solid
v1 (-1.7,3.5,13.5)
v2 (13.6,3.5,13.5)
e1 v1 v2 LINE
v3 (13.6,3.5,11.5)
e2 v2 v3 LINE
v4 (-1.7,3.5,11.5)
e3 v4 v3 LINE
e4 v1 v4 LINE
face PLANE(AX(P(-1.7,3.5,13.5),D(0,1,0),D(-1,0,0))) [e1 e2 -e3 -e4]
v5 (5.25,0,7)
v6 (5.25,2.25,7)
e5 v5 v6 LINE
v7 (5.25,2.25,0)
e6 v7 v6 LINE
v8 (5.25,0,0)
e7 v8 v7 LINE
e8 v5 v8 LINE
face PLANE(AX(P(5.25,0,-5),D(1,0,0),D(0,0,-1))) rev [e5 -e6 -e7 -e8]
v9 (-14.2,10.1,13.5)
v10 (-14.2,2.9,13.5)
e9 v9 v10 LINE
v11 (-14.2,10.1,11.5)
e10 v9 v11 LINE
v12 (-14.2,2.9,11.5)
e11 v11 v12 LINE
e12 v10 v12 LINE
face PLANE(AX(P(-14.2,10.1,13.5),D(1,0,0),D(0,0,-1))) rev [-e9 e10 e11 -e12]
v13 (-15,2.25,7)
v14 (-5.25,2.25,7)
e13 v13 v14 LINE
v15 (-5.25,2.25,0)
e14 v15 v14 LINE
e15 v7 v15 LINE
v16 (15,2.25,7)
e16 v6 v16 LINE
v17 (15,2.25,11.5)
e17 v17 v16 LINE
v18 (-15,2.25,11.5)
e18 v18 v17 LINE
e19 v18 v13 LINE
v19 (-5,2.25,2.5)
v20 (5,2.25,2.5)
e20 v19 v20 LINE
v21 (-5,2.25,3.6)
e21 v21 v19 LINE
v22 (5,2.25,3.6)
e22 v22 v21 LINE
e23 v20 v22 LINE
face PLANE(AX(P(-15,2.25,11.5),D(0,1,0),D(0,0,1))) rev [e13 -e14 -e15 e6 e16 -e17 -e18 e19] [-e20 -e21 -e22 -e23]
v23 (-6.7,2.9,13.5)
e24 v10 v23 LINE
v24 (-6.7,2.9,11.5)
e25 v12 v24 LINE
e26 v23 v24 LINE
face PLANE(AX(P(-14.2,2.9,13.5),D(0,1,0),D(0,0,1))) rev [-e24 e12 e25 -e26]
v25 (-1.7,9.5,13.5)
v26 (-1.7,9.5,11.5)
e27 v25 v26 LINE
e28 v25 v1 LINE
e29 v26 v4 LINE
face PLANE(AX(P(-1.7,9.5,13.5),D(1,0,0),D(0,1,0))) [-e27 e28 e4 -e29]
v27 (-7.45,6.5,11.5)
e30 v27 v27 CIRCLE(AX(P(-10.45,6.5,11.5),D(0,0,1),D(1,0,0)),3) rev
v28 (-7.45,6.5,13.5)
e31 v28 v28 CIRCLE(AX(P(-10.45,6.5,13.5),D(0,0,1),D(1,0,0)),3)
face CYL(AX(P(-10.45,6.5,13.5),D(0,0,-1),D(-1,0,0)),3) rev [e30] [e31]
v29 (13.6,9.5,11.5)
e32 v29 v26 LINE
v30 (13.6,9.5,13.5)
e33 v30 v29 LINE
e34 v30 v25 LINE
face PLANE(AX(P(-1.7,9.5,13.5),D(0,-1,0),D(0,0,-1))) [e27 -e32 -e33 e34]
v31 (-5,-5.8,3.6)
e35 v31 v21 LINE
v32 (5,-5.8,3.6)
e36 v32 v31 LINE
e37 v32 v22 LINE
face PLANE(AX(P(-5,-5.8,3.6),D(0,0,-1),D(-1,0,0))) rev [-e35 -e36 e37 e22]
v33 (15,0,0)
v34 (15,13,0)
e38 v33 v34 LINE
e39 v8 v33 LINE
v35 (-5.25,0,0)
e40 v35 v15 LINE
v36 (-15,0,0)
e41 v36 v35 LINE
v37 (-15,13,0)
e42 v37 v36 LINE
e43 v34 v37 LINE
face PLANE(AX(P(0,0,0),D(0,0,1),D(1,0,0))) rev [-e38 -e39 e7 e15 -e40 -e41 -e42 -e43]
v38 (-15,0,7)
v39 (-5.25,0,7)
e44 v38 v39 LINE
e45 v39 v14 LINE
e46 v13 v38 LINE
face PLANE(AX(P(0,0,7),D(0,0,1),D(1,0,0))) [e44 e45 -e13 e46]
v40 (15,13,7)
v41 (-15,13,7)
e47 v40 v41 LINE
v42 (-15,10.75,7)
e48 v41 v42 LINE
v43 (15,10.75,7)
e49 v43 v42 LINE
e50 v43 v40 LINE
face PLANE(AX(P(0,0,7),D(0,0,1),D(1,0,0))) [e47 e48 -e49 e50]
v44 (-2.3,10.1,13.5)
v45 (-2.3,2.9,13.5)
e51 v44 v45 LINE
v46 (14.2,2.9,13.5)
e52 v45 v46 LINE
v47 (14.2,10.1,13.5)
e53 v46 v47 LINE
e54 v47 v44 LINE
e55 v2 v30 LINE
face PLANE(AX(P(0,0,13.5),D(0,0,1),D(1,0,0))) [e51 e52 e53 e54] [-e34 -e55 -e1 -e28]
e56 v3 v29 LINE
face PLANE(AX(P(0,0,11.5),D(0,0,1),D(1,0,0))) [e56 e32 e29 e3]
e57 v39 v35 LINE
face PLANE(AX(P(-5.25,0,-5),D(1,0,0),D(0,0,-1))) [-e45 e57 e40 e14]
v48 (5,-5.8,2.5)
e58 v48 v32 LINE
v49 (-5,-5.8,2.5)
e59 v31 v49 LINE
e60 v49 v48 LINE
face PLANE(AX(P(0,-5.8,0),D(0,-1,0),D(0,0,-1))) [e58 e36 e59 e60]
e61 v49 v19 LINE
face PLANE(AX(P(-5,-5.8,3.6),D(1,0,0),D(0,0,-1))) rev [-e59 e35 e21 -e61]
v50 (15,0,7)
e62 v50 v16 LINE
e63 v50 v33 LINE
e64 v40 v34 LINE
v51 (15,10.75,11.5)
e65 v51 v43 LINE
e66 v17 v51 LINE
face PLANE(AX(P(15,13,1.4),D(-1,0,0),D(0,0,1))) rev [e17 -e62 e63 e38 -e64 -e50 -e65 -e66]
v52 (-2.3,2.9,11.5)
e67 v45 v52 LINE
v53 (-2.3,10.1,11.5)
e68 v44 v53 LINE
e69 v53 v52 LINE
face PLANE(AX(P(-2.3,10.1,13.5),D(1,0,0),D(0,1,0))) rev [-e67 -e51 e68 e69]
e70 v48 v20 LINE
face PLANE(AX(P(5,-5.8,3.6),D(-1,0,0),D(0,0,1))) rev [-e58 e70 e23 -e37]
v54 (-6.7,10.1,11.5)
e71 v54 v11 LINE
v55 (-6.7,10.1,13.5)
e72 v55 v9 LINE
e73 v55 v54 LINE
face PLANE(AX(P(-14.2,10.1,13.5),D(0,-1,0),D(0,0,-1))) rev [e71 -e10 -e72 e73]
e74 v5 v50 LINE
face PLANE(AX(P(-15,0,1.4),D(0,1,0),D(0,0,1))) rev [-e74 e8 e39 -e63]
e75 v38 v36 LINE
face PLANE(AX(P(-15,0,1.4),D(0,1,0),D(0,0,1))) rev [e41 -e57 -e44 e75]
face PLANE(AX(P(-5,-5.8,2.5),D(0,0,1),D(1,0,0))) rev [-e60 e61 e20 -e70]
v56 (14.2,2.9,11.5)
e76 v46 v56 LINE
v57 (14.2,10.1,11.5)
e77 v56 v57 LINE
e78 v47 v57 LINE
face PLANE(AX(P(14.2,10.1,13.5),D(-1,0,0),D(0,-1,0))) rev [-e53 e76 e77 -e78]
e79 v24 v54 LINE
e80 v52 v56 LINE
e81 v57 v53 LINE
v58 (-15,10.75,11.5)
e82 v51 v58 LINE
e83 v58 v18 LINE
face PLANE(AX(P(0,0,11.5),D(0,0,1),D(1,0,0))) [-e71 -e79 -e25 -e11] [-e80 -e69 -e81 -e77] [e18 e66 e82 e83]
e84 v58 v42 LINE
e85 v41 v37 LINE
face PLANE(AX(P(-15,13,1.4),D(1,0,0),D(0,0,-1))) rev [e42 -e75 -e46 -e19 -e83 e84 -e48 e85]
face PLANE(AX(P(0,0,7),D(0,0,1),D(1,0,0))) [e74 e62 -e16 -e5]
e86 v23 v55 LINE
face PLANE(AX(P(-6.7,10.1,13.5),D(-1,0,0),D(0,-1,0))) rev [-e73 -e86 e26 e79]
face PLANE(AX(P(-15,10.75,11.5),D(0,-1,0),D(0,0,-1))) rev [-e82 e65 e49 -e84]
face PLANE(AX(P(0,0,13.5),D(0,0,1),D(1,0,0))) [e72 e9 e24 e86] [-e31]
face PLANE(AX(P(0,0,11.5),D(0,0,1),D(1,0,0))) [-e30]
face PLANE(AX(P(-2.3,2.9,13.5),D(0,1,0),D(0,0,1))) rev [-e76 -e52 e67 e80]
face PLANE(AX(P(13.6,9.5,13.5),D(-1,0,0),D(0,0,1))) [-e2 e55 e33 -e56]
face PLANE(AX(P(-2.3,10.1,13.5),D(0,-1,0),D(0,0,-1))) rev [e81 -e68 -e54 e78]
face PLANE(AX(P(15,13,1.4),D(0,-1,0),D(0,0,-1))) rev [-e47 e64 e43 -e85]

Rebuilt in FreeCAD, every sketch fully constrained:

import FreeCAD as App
import Part
import Sketcher

V = App.Vector
Q = App.Units.Quantity

doc = App.newDocument("Part")
body = doc.addObject("PartDesign::Body", "Body")

# Sketch on XY plane
sketch1 = doc.addObject("Sketcher::SketchObject", "Sketch")
body.addObject(sketch1)
sketch1.AttachmentSupport = (doc.XY_Plane, [""])
sketch1.MapMode = "FlatFace"
sketch1.addGeometry(Part.LineSegment(V(-15, 13, 0), V(-15, 0, 0)), False)
sketch1.addGeometry(Part.LineSegment(V(-15, 0, 0), V(15, 0, 0)), False)
sketch1.addGeometry(Part.LineSegment(V(15, 0, 0), V(15, 13, 0)), False)
sketch1.addGeometry(Part.LineSegment(V(15, 13, 0), V(-15, 13, 0)), False)
sketch1.addConstraint(Sketcher.Constraint("Coincident", 0, 2, 1, 1))
sketch1.addConstraint(Sketcher.Constraint("Coincident", 1, 2, 2, 1))
sketch1.addConstraint(Sketcher.Constraint("Coincident", 2, 2, 3, 1))
sketch1.addConstraint(Sketcher.Constraint("Coincident", 3, 2, 0, 1))
sketch1.addConstraint(Sketcher.Constraint("Vertical", 0))
sketch1.addConstraint(Sketcher.Constraint("Horizontal", 1))
sketch1.addConstraint(Sketcher.Constraint("Vertical", 2))
sketch1.addConstraint(Sketcher.Constraint("Horizontal", 3))
sketch1.addConstraint(Sketcher.Constraint("Symmetric", 0, 2, 1, 2, -1, 1))
sketch1.addConstraint(Sketcher.Constraint("DistanceX", 1, 1, 1, 2, Q("30 mm")))
sketch1.addConstraint(Sketcher.Constraint("DistanceY", 0, 2, 0, 1, Q("13 mm")))
pad1 = doc.addObject("PartDesign::Pad", "Pad")
body.addObject(pad1)
pad1.Profile = sketch1
pad1.Length = 1.4

# Sketch on XY plane
sketch2 = doc.addObject("Sketcher::SketchObject", "Sketch001")
body.addObject(sketch2)
sketch2.AttachmentSupport = (doc.XY_Plane, [""])
sketch2.MapMode = "FlatFace"
sketch2.AttachmentOffset = App.Placement(V(0, 0, 1.4), App.Rotation())
sketch2.addGeometry(Part.LineSegment(V(-15, 13, 0), V(-15, 0, 0)), False)
sketch2.addGeometry(Part.LineSegment(V(-15, 0, 0), V(15, 0, 0)), False)
sketch2.addGeometry(Part.LineSegment(V(15, 0, 0), V(15, 13, 0)), False)
sketch2.addGeometry(Part.LineSegment(V(15, 13, 0), V(-15, 13, 0)), False)
sketch2.addConstraint(Sketcher.Constraint("Coincident", 0, 2, 1, 1))
sketch2.addConstraint(Sketcher.Constraint("Coincident", 1, 2, 2, 1))
sketch2.addConstraint(Sketcher.Constraint("Coincident", 2, 2, 3, 1))
sketch2.addConstraint(Sketcher.Constraint("Coincident", 3, 2, 0, 1))
sketch2.addConstraint(Sketcher.Constraint("Vertical", 0))
sketch2.addConstraint(Sketcher.Constraint("Horizontal", 1))
sketch2.addConstraint(Sketcher.Constraint("Vertical", 2))
sketch2.addConstraint(Sketcher.Constraint("Horizontal", 3))
sketch2.addConstraint(Sketcher.Constraint("Symmetric", 0, 2, 1, 2, -1, 1))
sketch2.addConstraint(Sketcher.Constraint("DistanceX", 1, 1, 1, 2, Q("30 mm")))
sketch2.addConstraint(Sketcher.Constraint("DistanceY", 0, 2, 0, 1, Q("13 mm")))
pad2 = doc.addObject("PartDesign::Pad", "Pad001")
body.addObject(pad2)
pad2.Profile = sketch2
pad2.Length = 4

# Sketch on XY plane
sketch3 = doc.addObject("Sketcher::SketchObject", "Sketch002")
body.addObject(sketch3)
sketch3.AttachmentSupport = (doc.XY_Plane, [""])
sketch3.MapMode = "FlatFace"
sketch3.AttachmentOffset = App.Placement(V(0, 0, 5.4), App.Rotation())
sketch3.addGeometry(Part.LineSegment(V(-15, 13, 0), V(-15, 0, 0)), False)
sketch3.addGeometry(Part.LineSegment(V(-15, 0, 0), V(15, 0, 0)), False)
sketch3.addGeometry(Part.LineSegment(V(15, 0, 0), V(15, 13, 0)), False)
sketch3.addGeometry(Part.LineSegment(V(15, 13, 0), V(-15, 13, 0)), False)
sketch3.addConstraint(Sketcher.Constraint("Coincident", 0, 2, 1, 1))
sketch3.addConstraint(Sketcher.Constraint("Coincident", 1, 2, 2, 1))
sketch3.addConstraint(Sketcher.Constraint("Coincident", 2, 2, 3, 1))
sketch3.addConstraint(Sketcher.Constraint("Coincident", 3, 2, 0, 1))
sketch3.addConstraint(Sketcher.Constraint("Vertical", 0))
sketch3.addConstraint(Sketcher.Constraint("Horizontal", 1))
sketch3.addConstraint(Sketcher.Constraint("Vertical", 2))
sketch3.addConstraint(Sketcher.Constraint("Horizontal", 3))
sketch3.addConstraint(Sketcher.Constraint("Symmetric", 0, 2, 1, 2, -1, 1))
sketch3.addConstraint(Sketcher.Constraint("DistanceX", 1, 1, 1, 2, Q("30 mm")))
sketch3.addConstraint(Sketcher.Constraint("DistanceY", 0, 2, 0, 1, Q("13 mm")))
pad3 = doc.addObject("PartDesign::Pad", "Pad002")
body.addObject(pad3)
pad3.Profile = sketch3
pad3.Length = 1.6

# Sketch on XY plane
sketch4 = doc.addObject("Sketcher::SketchObject", "Sketch003")
body.addObject(sketch4)
sketch4.AttachmentSupport = (doc.XY_Plane, [""])
sketch4.MapMode = "FlatFace"
sketch4.AttachmentOffset = App.Placement(V(0, 0, 7), App.Rotation())
sketch4.addGeometry(Part.LineSegment(V(-15, 11, 0), V(-15, 2, 0)), False)
sketch4.addGeometry(Part.LineSegment(V(-15, 2, 0), V(15, 2, 0)), False)
sketch4.addGeometry(Part.LineSegment(V(15, 2, 0), V(15, 11, 0)), False)
sketch4.addGeometry(Part.LineSegment(V(15, 11, 0), V(-15, 11, 0)), False)
sketch4.addConstraint(Sketcher.Constraint("Coincident", 0, 2, 1, 1))
sketch4.addConstraint(Sketcher.Constraint("Coincident", 1, 2, 2, 1))
sketch4.addConstraint(Sketcher.Constraint("Coincident", 2, 2, 3, 1))
sketch4.addConstraint(Sketcher.Constraint("Coincident", 3, 2, 0, 1))
sketch4.addConstraint(Sketcher.Constraint("Vertical", 0))
sketch4.addConstraint(Sketcher.Constraint("Horizontal", 1))
sketch4.addConstraint(Sketcher.Constraint("Vertical", 2))
sketch4.addConstraint(Sketcher.Constraint("Horizontal", 3))
sketch4.addConstraint(Sketcher.Constraint("DistanceX", 1, 1, 1, 2, Q("30 mm")))
sketch4.addConstraint(Sketcher.Constraint("DistanceY", 0, 2, 0, 1, Q("8.5 mm")))
sketch4.addConstraint(Sketcher.Constraint("DistanceX", 0, 2, -1, 1, Q("15 mm")))
sketch4.addConstraint(Sketcher.Constraint("DistanceY", -1, 1, 0, 2, Q("2.25 mm")))
pad4 = doc.addObject("PartDesign::Pad", "Pad003")
body.addObject(pad4)
pad4.Profile = sketch4
pad4.Length = 4.5

# Sketch on XY plane
sketch5 = doc.addObject("Sketcher::SketchObject", "Sketch004")
body.addObject(sketch5)
sketch5.AttachmentSupport = (doc.XY_Plane, [""])
sketch5.MapMode = "FlatFace"
sketch5.AttachmentOffset = App.Placement(V(0, 0, 11.5), App.Rotation())
sketch5.addGeometry(Part.LineSegment(V(-2.3, 10.1, 0), V(-2.3, 2.9, 0)), False)
sketch5.addGeometry(Part.LineSegment(V(-2.3, 2.9, 0), V(14.2, 2.9, 0)), False)
sketch5.addGeometry(Part.LineSegment(V(14.2, 2.9, 0), V(14.2, 10.1, 0)), False)
sketch5.addGeometry(Part.LineSegment(V(14.2, 10.1, 0), V(-2.3, 10.1, 0)), False)
sketch5.addGeometry(Part.LineSegment(V(13.6, 3.5, 0), V(-1.7, 3.5, 0)), False)
sketch5.addGeometry(Part.LineSegment(V(-1.7, 3.5, 0), V(-1.7, 9.5, 0)), False)
sketch5.addGeometry(Part.LineSegment(V(-1.7, 9.5, 0), V(13.6, 9.5, 0)), False)
sketch5.addGeometry(Part.LineSegment(V(13.6, 9.5, 0), V(13.6, 3.5, 0)), False)
sketch5.addGeometry(Part.LineSegment(V(-14.2, 10.1, 0), V(-14.2, 2.9, 0)), False)
sketch5.addGeometry(Part.LineSegment(V(-14.2, 2.9, 0), V(-6.7, 2.9, 0)), False)
sketch5.addGeometry(Part.LineSegment(V(-6.7, 2.9, 0), V(-6.7, 10.1, 0)), False)
sketch5.addGeometry(Part.LineSegment(V(-6.7, 10.1, 0), V(-14.2, 10.1, 0)), False)
sketch5.addGeometry(Part.Circle(V(-10.4, 6.5, 0), V(0, 0, 1), 3), False)
sketch5.addConstraint(Sketcher.Constraint("Coincident", 0, 2, 1, 1))
sketch5.addConstraint(Sketcher.Constraint("Coincident", 1, 2, 2, 1))
sketch5.addConstraint(Sketcher.Constraint("Coincident", 2, 2, 3, 1))
sketch5.addConstraint(Sketcher.Constraint("Coincident", 3, 2, 0, 1))
sketch5.addConstraint(Sketcher.Constraint("Coincident", 4, 2, 5, 1))
sketch5.addConstraint(Sketcher.Constraint("Coincident", 5, 2, 6, 1))
sketch5.addConstraint(Sketcher.Constraint("Coincident", 6, 2, 7, 1))
sketch5.addConstraint(Sketcher.Constraint("Coincident", 7, 2, 4, 1))
sketch5.addConstraint(Sketcher.Constraint("Coincident", 8, 2, 9, 1))
sketch5.addConstraint(Sketcher.Constraint("Coincident", 9, 2, 10, 1))
sketch5.addConstraint(Sketcher.Constraint("Coincident", 10, 2, 11, 1))
sketch5.addConstraint(Sketcher.Constraint("Coincident", 11, 2, 8, 1))
sketch5.addConstraint(Sketcher.Constraint("Vertical", 0))
sketch5.addConstraint(Sketcher.Constraint("Horizontal", 1))
sketch5.addConstraint(Sketcher.Constraint("Vertical", 2))
sketch5.addConstraint(Sketcher.Constraint("Horizontal", 3))
sketch5.addConstraint(Sketcher.Constraint("Horizontal", 4))
sketch5.addConstraint(Sketcher.Constraint("Vertical", 5))
sketch5.addConstraint(Sketcher.Constraint("Horizontal", 6))
sketch5.addConstraint(Sketcher.Constraint("Vertical", 7))
sketch5.addConstraint(Sketcher.Constraint("Vertical", 8))
sketch5.addConstraint(Sketcher.Constraint("Horizontal", 9))
sketch5.addConstraint(Sketcher.Constraint("Vertical", 10))
sketch5.addConstraint(Sketcher.Constraint("Horizontal", 11))
sketch5.addConstraint(Sketcher.Constraint("Symmetric", 1, 2, 8, 2, -2))
sketch5.addConstraint(Sketcher.Constraint("Horizontal", 3, 2, 10, 2))
sketch5.addConstraint(Sketcher.Constraint("Diameter", 12, Q("6 mm")))
sketch5.addConstraint(Sketcher.Constraint("DistanceY", 5, 1, 5, 2, Q("6 mm")))
sketch5.addConstraint(Sketcher.Constraint("DistanceX", 1, 1, 1, 2, Q("16.5 mm")))
sketch5.addConstraint(Sketcher.Constraint("DistanceX", 4, 2, 4, 1, Q("15.3 mm")))
sketch5.addConstraint(Sketcher.Constraint("DistanceX", 9, 1, 9, 2, Q("7.5 mm")))
sketch5.addConstraint(Sketcher.Constraint("DistanceY", 0, 2, 0, 1, Q("7.2 mm")))
sketch5.addConstraint(Sketcher.Constraint("DistanceY", 4, 2, 12, 3, Q("3 mm")))
sketch5.addConstraint(Sketcher.Constraint("DistanceX", 9, 2, 4, 2, Q("5 mm")))
sketch5.addConstraint(Sketcher.Constraint("DistanceY", -1, 1, 12, 3, Q("6.5 mm")))
sketch5.addConstraint(Sketcher.Constraint("DistanceX", 0, 2, -1, 1, Q("2.3 mm")))
sketch5.addConstraint(Sketcher.Constraint("DistanceY", -1, 1, 0, 2, Q("2.9 mm")))
sketch5.addConstraint(Sketcher.Constraint("DistanceX", 12, 3, -1, 1, Q("10.45 mm")))
pad5 = doc.addObject("PartDesign::Pad", "Pad004")
body.addObject(pad5)
pad5.Profile = sketch5
pad5.Length = 2

# Sketch on XY plane
sketch6 = doc.addObject("Sketcher::SketchObject", "Sketch005")
body.addObject(sketch6)
sketch6.AttachmentSupport = (doc.XY_Plane, [""])
sketch6.MapMode = "FlatFace"
sketch6.AttachmentOffset = App.Placement(V(0, 0, 7), App.Rotation())
sketch6.addGeometry(Part.LineSegment(V(-5.2, 2.2, 0), V(-5.2, -2.2, 0)), False)
sketch6.addGeometry(Part.LineSegment(V(-5.2, -2.2, 0), V(5.2, -2.2, 0)), False)
sketch6.addGeometry(Part.LineSegment(V(5.2, -2.2, 0), V(5.2, 2.2, 0)), False)
sketch6.addGeometry(Part.LineSegment(V(5.2, 2.2, 0), V(-5.2, 2.2, 0)), False)
sketch6.addConstraint(Sketcher.Constraint("Coincident", 0, 2, 1, 1))
sketch6.addConstraint(Sketcher.Constraint("Coincident", 1, 2, 2, 1))
sketch6.addConstraint(Sketcher.Constraint("Coincident", 2, 2, 3, 1))
sketch6.addConstraint(Sketcher.Constraint("Coincident", 3, 2, 0, 1))
sketch6.addConstraint(Sketcher.Constraint("Vertical", 0))
sketch6.addConstraint(Sketcher.Constraint("Horizontal", 1))
sketch6.addConstraint(Sketcher.Constraint("Vertical", 2))
sketch6.addConstraint(Sketcher.Constraint("Horizontal", 3))
sketch6.addConstraint(Sketcher.Constraint("Symmetric", 0, 2, 2, 2, -1, 1))
sketch6.addConstraint(Sketcher.Constraint("DistanceX", 1, 1, 1, 2, Q("10.5 mm")))
sketch6.addConstraint(Sketcher.Constraint("DistanceY", 0, 2, 0, 1, Q("4.5 mm")))
pocket1 = doc.addObject("PartDesign::Pocket", "Pocket")
body.addObject(pocket1)
pocket1.Profile = sketch6
pocket1.Length = 12

# Sketch on XZ plane
sketch7 = doc.addObject("Sketcher::SketchObject", "Sketch006")
body.addObject(sketch7)
sketch7.AttachmentSupport = (doc.XZ_Plane, [""])
sketch7.MapMode = "FlatFace"
sketch7.AttachmentOffset = App.Placement(V(0, 0, -2.25), App.Rotation())
sketch7.addGeometry(Part.LineSegment(V(-5, 3.6, 0), V(-5, 2.5, 0)), False)
sketch7.addGeometry(Part.LineSegment(V(-5, 2.5, 0), V(5, 2.5, 0)), False)
sketch7.addGeometry(Part.LineSegment(V(5, 2.5, 0), V(5, 3.6, 0)), False)
sketch7.addGeometry(Part.LineSegment(V(5, 3.6, 0), V(-5, 3.6, 0)), False)
sketch7.addConstraint(Sketcher.Constraint("Coincident", 0, 2, 1, 1))
sketch7.addConstraint(Sketcher.Constraint("Coincident", 1, 2, 2, 1))
sketch7.addConstraint(Sketcher.Constraint("Coincident", 2, 2, 3, 1))
sketch7.addConstraint(Sketcher.Constraint("Coincident", 3, 2, 0, 1))
sketch7.addConstraint(Sketcher.Constraint("Vertical", 0))
sketch7.addConstraint(Sketcher.Constraint("Horizontal", 1))
sketch7.addConstraint(Sketcher.Constraint("Vertical", 2))
sketch7.addConstraint(Sketcher.Constraint("Horizontal", 3))
sketch7.addConstraint(Sketcher.Constraint("DistanceX", 1, 1, 1, 2, Q("10 mm")))
sketch7.addConstraint(Sketcher.Constraint("DistanceY", 0, 2, 0, 1, Q("1.1 mm")))
sketch7.addConstraint(Sketcher.Constraint("DistanceX", 0, 2, -1, 1, Q("5 mm")))
sketch7.addConstraint(Sketcher.Constraint("DistanceY", -1, 1, 0, 2, Q("2.5 mm")))
pad6 = doc.addObject("PartDesign::Pad", "Pad005")
body.addObject(pad6)
pad6.Profile = sketch7
pad6.Length = 8.05

doc.recompute()
